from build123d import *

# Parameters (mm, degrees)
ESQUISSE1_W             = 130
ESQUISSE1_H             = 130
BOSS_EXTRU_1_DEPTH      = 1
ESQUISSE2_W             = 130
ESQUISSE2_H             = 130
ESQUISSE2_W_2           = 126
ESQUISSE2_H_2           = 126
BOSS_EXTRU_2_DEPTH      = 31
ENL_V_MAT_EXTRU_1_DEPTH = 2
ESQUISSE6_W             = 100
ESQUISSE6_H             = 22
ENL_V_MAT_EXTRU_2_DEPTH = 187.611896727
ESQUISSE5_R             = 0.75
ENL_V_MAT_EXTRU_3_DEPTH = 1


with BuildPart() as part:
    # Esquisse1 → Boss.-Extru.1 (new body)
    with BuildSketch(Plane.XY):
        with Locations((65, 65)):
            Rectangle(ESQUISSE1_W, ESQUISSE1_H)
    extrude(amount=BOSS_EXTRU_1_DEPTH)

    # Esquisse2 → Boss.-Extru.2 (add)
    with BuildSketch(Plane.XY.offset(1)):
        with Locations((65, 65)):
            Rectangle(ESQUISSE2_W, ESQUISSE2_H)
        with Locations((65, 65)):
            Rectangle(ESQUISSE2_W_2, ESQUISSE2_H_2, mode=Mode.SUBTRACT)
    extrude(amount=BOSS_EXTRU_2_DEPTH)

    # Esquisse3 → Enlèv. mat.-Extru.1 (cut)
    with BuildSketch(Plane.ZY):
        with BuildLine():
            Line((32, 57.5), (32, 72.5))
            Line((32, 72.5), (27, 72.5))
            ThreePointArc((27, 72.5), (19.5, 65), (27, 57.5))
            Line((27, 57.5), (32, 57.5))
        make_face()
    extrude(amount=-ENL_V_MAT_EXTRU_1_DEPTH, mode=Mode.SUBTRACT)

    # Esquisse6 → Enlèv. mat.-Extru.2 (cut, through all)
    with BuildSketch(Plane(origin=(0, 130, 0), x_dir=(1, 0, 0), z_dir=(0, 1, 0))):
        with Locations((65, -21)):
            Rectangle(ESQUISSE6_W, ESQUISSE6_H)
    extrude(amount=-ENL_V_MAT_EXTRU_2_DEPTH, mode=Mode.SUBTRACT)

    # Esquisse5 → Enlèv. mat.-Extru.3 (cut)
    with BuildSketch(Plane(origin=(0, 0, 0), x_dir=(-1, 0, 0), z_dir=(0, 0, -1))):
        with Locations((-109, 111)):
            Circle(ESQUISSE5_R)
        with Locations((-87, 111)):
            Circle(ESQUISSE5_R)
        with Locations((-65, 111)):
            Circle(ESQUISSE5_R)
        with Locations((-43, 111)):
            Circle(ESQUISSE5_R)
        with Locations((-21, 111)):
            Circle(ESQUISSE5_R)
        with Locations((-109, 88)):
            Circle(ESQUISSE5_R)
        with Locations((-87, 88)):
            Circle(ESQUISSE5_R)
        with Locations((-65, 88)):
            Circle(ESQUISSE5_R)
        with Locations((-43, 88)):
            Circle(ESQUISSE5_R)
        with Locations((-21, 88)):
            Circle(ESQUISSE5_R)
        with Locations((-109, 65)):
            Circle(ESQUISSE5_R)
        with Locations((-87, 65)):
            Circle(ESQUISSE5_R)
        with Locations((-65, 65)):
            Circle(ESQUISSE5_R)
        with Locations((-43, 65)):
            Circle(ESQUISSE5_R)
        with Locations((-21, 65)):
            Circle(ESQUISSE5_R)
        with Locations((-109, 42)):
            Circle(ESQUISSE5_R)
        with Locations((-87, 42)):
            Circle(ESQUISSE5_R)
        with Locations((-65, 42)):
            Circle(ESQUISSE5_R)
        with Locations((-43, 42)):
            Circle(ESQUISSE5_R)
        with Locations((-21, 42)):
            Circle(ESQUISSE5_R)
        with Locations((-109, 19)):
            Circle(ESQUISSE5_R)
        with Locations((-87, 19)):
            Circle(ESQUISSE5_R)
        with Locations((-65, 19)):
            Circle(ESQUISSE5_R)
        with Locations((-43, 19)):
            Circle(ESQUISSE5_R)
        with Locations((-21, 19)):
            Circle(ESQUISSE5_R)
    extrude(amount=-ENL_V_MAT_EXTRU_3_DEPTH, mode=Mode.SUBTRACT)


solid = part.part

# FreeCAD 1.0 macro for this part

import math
import FreeCAD as App
import Part
import Sketcher

V = App.Vector
Q = App.Units.Quantity


def add_polygon(sketch, points):
    """Adds a closed chain of lines whose ends are joined by coincident constraints."""
    first, n = sketch.GeometryCount, len(points)
    for a, b in zip(points, points[1:] + points[:1]):
        sketch.addGeometry(Part.LineSegment(App.Vector(*a, 0), App.Vector(*b, 0)), False)
    for i in range(n):
        sketch.addConstraint(Sketcher.Constraint("Coincident", first + i, 2, first + (i + 1) % n, 1))

doc = App.newDocument("Part")
body = doc.addObject("PartDesign::Body", "Body")

# Sketch on XY plane
sketch1 = doc.addObject("Sketcher::SketchObject", "Sketch")
body.addObject(sketch1)
sketch1.AttachmentSupport = (doc.XY_Plane, [""])
sketch1.MapMode = "FlatFace"
add_polygon(sketch1, [(0, 130), (0, 0), (130, 0), (130, 130)])  # lines 0-3
sketch1.addConstraint([
    Sketcher.Constraint("Vertical", 0),
    Sketcher.Constraint("Horizontal", 1),
    Sketcher.Constraint("Vertical", 2),
    Sketcher.Constraint("Horizontal", 3),
    Sketcher.Constraint("Coincident", 0, 2, -1, 1),
    Sketcher.Constraint("Equal", 3, 0),
    Sketcher.Constraint("DistanceX", 1, 1, 1, 2, Q("130 mm")),
])
pad1 = doc.addObject("PartDesign::Pad", "Pad")
body.addObject(pad1)
pad1.Profile = sketch1
pad1.Length = 1

# Sketch on XY plane
sketch2 = doc.addObject("Sketcher::SketchObject", "Sketch001")
body.addObject(sketch2)
sketch2.AttachmentSupport = (doc.XY_Plane, [""])
sketch2.MapMode = "FlatFace"
sketch2.AttachmentOffset = App.Placement(V(0, 0, 1), App.Rotation())
add_polygon(sketch2, [(0, 130), (0, 0), (130, 0), (130, 130)])  # lines 0-3
add_polygon(sketch2, [(128, 2), (2, 2), (2, 128), (128, 128)])  # lines 4-7
sketch2.addConstraint([
    Sketcher.Constraint("Vertical", 0),
    Sketcher.Constraint("Horizontal", 1),
    Sketcher.Constraint("Vertical", 2),
    Sketcher.Constraint("Horizontal", 3),
    Sketcher.Constraint("Horizontal", 4),
    Sketcher.Constraint("Vertical", 5),
    Sketcher.Constraint("Horizontal", 6),
    Sketcher.Constraint("Vertical", 7),
    Sketcher.Constraint("Coincident", 0, 2, -1, 1),
    Sketcher.Constraint("Equal", 3, 0),
    Sketcher.Constraint("Equal", 6, 5),
    Sketcher.Constraint("DistanceX", 1, 1, 1, 2, Q("130 mm")),
    Sketcher.Constraint("DistanceX", 4, 2, 4, 1, Q("126 mm")),
    Sketcher.Constraint("DistanceX", -1, 1, 4, 2, Q("2 mm")),
    Sketcher.Constraint("DistanceY", -1, 1, 4, 2, Q("2 mm")),
])
pad2 = doc.addObject("PartDesign::Pad", "Pad001")
body.addObject(pad2)
pad2.Profile = sketch2
pad2.Length = 31

# Sketch on YZ plane
sketch3 = doc.addObject("Sketcher::SketchObject", "Sketch002")
body.addObject(sketch3)
sketch3.AttachmentSupport = (doc.YZ_Plane, [""])
sketch3.MapMode = "FlatFace"
sketch3.addGeometry([
    Part.LineSegment(V(58, 32, 0), V(72, 32, 0)),
    Part.LineSegment(V(72, 32, 0), V(72, 27, 0)),
    Part.ArcOfCircle(Part.Circle(V(65, 27, 0), V(0, 0, 1), 8), math.radians(180), math.radians(360)),
    Part.LineSegment(V(58, 27, 0), V(58, 32, 0)),
], False)
sketch3.addConstraint([
    Sketcher.Constraint("Coincident", 0, 2, 1, 1),
    Sketcher.Constraint("Tangent", 1, 2, 2, 2),
    Sketcher.Constraint("Tangent", 2, 1, 3, 1),
    Sketcher.Constraint("Coincident", 3, 2, 0, 1),
    Sketcher.Constraint("Horizontal", 0),
    Sketcher.Constraint("Vertical", 1),
    Sketcher.Constraint("Vertical", 3),
    Sketcher.Constraint("Radius", 2, Q("7.5 mm")),
    Sketcher.Constraint("DistanceY", 1, 2, 1, 1, Q("5 mm")),
    Sketcher.Constraint("DistanceX", -1, 1, 2, 3, Q("65 mm")),
    Sketcher.Constraint("DistanceY", -1, 1, 2, 3, Q("27 mm")),
])
pocket1 = doc.addObject("PartDesign::Pocket", "Pocket")
body.addObject(pocket1)
pocket1.Profile = sketch3
pocket1.Length = 2
pocket1.Reversed = True

# Sketch on XZ plane
sketch4 = doc.addObject("Sketcher::SketchObject", "Sketch003")
body.addObject(sketch4)
sketch4.AttachmentSupport = (doc.XZ_Plane, [""])
sketch4.MapMode = "FlatFace"
sketch4.AttachmentOffset = App.Placement(V(0, 0, -130), App.Rotation())
add_polygon(sketch4, [(15, 10), (15, 32), (115, 32), (115, 10)])  # lines 0-3
sketch4.addConstraint([
    Sketcher.Constraint("Vertical", 0),
    Sketcher.Constraint("Horizontal", 1),
    Sketcher.Constraint("Vertical", 2),
    Sketcher.Constraint("Horizontal", 3),
    Sketcher.Constraint("DistanceX", 1, 1, 1, 2, Q("100 mm")),
    Sketcher.Constraint("DistanceY", 0, 1, 0, 2, Q("22 mm")),
    Sketcher.Constraint("DistanceX", -1, 1, 0, 2, Q("15 mm")),
    Sketcher.Constraint("DistanceY", -1, 1, 0, 2, Q("32 mm")),
])
pocket2 = doc.addObject("PartDesign::Pocket", "Pocket001")
body.addObject(pocket2)
pocket2.Profile = sketch4
pocket2.Type = "ThroughAll"
pocket2.Reversed = True

# Sketch on XY plane
sketch5 = doc.addObject("Sketcher::SketchObject", "Sketch004")
body.addObject(sketch5)
sketch5.AttachmentSupport = (doc.XY_Plane, [""])
sketch5.MapMode = "FlatFace"
sketch5.addGeometry([
    Part.Circle(V(109, 111, 0), V(0, 0, 1), 0.8),  # 0
    Part.Circle(V(87, 111, 0), V(0, 0, 1), 0.8),  # 1
    Part.Circle(V(65, 111, 0), V(0, 0, 1), 0.8),  # 2
    Part.Circle(V(43, 111, 0), V(0, 0, 1), 0.8),  # 3
    Part.Circle(V(21, 111, 0), V(0, 0, 1), 0.8),  # 4
    Part.Circle(V(109, 88, 0), V(0, 0, 1), 0.8),  # 5
    Part.Circle(V(87, 88, 0), V(0, 0, 1), 0.8),  # 6
    Part.Circle(V(65, 88, 0), V(0, 0, 1), 0.8),  # 7
    Part.Circle(V(43, 88, 0), V(0, 0, 1), 0.8),  # 8
    Part.Circle(V(21, 88, 0), V(0, 0, 1), 0.8),  # 9
    Part.Circle(V(109, 65, 0), V(0, 0, 1), 0.8),  # 10
    Part.Circle(V(87, 65, 0), V(0, 0, 1), 0.8),  # 11
    Part.Circle(V(65, 65, 0), V(0, 0, 1), 0.8),  # 12
    Part.Circle(V(43, 65, 0), V(0, 0, 1), 0.8),  # 13
    Part.Circle(V(21, 65, 0), V(0, 0, 1), 0.8),  # 14
    Part.Circle(V(109, 42, 0), V(0, 0, 1), 0.8),  # 15
    Part.Circle(V(87, 42, 0), V(0, 0, 1), 0.8),  # 16
    Part.Circle(V(65, 42, 0), V(0, 0, 1), 0.8),  # 17
    Part.Circle(V(43, 42, 0), V(0, 0, 1), 0.8),  # 18
    Part.Circle(V(21, 42, 0), V(0, 0, 1), 0.8),  # 19
    Part.Circle(V(109, 19, 0), V(0, 0, 1), 0.8),  # 20
    Part.Circle(V(87, 19, 0), V(0, 0, 1), 0.8),  # 21
    Part.Circle(V(65, 19, 0), V(0, 0, 1), 0.8),  # 22
    Part.Circle(V(43, 19, 0), V(0, 0, 1), 0.8),  # 23
    Part.Circle(V(21, 19, 0), V(0, 0, 1), 0.8),  # 24
], False)
sketch5.addConstraint([
    Sketcher.Constraint("Equal", 0, 1),
    Sketcher.Constraint("Equal", 1, 2),
    Sketcher.Constraint("Equal", 2, 3),
    Sketcher.Constraint("Equal", 3, 4),
    Sketcher.Constraint("Equal", 4, 5),
    Sketcher.Constraint("Equal", 5, 6),
    Sketcher.Constraint("Equal", 6, 7),
    Sketcher.Constraint("Equal", 7, 8),
    Sketcher.Constraint("Equal", 8, 9),
    Sketcher.Constraint("Equal", 9, 10),
    Sketcher.Constraint("Equal", 10, 11),
    Sketcher.Constraint("Equal", 11, 12),
    Sketcher.Constraint("Equal", 12, 13),
    Sketcher.Constraint("Equal", 13, 14),
    Sketcher.Constraint("Equal", 14, 15),
    Sketcher.Constraint("Equal", 15, 16),
    Sketcher.Constraint("Equal", 16, 17),
    Sketcher.Constraint("Equal", 17, 18),
    Sketcher.Constraint("Equal", 18, 19),
    Sketcher.Constraint("Equal", 19, 20),
    Sketcher.Constraint("Equal", 20, 21),
    Sketcher.Constraint("Equal", 21, 22),
    Sketcher.Constraint("Equal", 22, 23),
    Sketcher.Constraint("Equal", 23, 24),
    Sketcher.Constraint("Horizontal", 0, 3, 1, 3),
    Sketcher.Constraint("Horizontal", 1, 3, 2, 3),
    Sketcher.Constraint("Horizontal", 2, 3, 3, 3),
    Sketcher.Constraint("Horizontal", 3, 3, 4, 3),
    Sketcher.Constraint("Horizontal", 5, 3, 6, 3),
    Sketcher.Constraint("Horizontal", 6, 3, 7, 3),
    Sketcher.Constraint("Horizontal", 7, 3, 8, 3),
    Sketcher.Constraint("Horizontal", 8, 3, 9, 3),
    Sketcher.Constraint("Horizontal", 10, 3, 11, 3),
    Sketcher.Constraint("Horizontal", 11, 3, 12, 3),
    Sketcher.Constraint("Horizontal", 12, 3, 13, 3),
    Sketcher.Constraint("Horizontal", 13, 3, 14, 3),
    Sketcher.Constraint("Horizontal", 15, 3, 16, 3),
    Sketcher.Constraint("Horizontal", 16, 3, 17, 3),
    Sketcher.Constraint("Horizontal", 17, 3, 18, 3),
    Sketcher.Constraint("Horizontal", 18, 3, 19, 3),
    Sketcher.Constraint("Horizontal", 20, 3, 21, 3),
    Sketcher.Constraint("Horizontal", 21, 3, 22, 3),
    Sketcher.Constraint("Horizontal", 22, 3, 23, 3),
    Sketcher.Constraint("Horizontal", 23, 3, 24, 3),
    Sketcher.Constraint("Vertical", 0, 3, 5, 3),
    Sketcher.Constraint("Vertical", 1, 3, 6, 3),
    Sketcher.Constraint("Vertical", 2, 3, 7, 3),
    Sketcher.Constraint("Vertical", 3, 3, 8, 3),
    Sketcher.Constraint("Vertical", 4, 3, 9, 3),
    Sketcher.Constraint("Vertical", 5, 3, 10, 3),
    Sketcher.Constraint("Vertical", 6, 3, 11, 3),
    Sketcher.Constraint("Vertical", 7, 3, 12, 3),
    Sketcher.Constraint("Vertical", 8, 3, 13, 3),
    Sketcher.Constraint("Vertical", 9, 3, 14, 3),
    Sketcher.Constraint("Vertical", 10, 3, 15, 3),
    Sketcher.Constraint("Vertical", 11, 3, 16, 3),
    Sketcher.Constraint("Vertical", 12, 3, 17, 3),
    Sketcher.Constraint("Vertical", 13, 3, 18, 3),
    Sketcher.Constraint("Vertical", 14, 3, 19, 3),
    Sketcher.Constraint("Vertical", 15, 3, 20, 3),
    Sketcher.Constraint("Vertical", 16, 3, 21, 3),
    Sketcher.Constraint("Vertical", 17, 3, 22, 3),
    Sketcher.Constraint("Vertical", 18, 3, 23, 3),
    Sketcher.Constraint("Vertical", 19, 3, 24, 3),
    Sketcher.Constraint("Diameter", 0, Q("1.5 mm")),
    Sketcher.Constraint("DistanceX", -1, 1, 0, 3, Q("109 mm")),
    Sketcher.Constraint("DistanceY", -1, 1, 0, 3, Q("111 mm")),
    Sketcher.Constraint("DistanceX", -1, 1, 1, 3, Q("87 mm")),
    Sketcher.Constraint("DistanceX", -1, 1, 2, 3, Q("65 mm")),
    Sketcher.Constraint("DistanceX", -1, 1, 3, 3, Q("43 mm")),
    Sketcher.Constraint("DistanceX", -1, 1, 4, 3, Q("21 mm")),
    Sketcher.Constraint("DistanceY", -1, 1, 5, 3, Q("88 mm")),
    Sketcher.Constraint("DistanceY", -1, 1, 10, 3, Q("65 mm")),
    Sketcher.Constraint("DistanceY", -1, 1, 15, 3, Q("42 mm")),
    Sketcher.Constraint("DistanceY", -1, 1, 20, 3, Q("19 mm")),
])
pocket3 = doc.addObject("PartDesign::Pocket", "Pocket002")
body.addObject(pocket3)
pocket3.Profile = sketch5
pocket3.Length = 1
pocket3.Reversed = True

doc.recompute()
